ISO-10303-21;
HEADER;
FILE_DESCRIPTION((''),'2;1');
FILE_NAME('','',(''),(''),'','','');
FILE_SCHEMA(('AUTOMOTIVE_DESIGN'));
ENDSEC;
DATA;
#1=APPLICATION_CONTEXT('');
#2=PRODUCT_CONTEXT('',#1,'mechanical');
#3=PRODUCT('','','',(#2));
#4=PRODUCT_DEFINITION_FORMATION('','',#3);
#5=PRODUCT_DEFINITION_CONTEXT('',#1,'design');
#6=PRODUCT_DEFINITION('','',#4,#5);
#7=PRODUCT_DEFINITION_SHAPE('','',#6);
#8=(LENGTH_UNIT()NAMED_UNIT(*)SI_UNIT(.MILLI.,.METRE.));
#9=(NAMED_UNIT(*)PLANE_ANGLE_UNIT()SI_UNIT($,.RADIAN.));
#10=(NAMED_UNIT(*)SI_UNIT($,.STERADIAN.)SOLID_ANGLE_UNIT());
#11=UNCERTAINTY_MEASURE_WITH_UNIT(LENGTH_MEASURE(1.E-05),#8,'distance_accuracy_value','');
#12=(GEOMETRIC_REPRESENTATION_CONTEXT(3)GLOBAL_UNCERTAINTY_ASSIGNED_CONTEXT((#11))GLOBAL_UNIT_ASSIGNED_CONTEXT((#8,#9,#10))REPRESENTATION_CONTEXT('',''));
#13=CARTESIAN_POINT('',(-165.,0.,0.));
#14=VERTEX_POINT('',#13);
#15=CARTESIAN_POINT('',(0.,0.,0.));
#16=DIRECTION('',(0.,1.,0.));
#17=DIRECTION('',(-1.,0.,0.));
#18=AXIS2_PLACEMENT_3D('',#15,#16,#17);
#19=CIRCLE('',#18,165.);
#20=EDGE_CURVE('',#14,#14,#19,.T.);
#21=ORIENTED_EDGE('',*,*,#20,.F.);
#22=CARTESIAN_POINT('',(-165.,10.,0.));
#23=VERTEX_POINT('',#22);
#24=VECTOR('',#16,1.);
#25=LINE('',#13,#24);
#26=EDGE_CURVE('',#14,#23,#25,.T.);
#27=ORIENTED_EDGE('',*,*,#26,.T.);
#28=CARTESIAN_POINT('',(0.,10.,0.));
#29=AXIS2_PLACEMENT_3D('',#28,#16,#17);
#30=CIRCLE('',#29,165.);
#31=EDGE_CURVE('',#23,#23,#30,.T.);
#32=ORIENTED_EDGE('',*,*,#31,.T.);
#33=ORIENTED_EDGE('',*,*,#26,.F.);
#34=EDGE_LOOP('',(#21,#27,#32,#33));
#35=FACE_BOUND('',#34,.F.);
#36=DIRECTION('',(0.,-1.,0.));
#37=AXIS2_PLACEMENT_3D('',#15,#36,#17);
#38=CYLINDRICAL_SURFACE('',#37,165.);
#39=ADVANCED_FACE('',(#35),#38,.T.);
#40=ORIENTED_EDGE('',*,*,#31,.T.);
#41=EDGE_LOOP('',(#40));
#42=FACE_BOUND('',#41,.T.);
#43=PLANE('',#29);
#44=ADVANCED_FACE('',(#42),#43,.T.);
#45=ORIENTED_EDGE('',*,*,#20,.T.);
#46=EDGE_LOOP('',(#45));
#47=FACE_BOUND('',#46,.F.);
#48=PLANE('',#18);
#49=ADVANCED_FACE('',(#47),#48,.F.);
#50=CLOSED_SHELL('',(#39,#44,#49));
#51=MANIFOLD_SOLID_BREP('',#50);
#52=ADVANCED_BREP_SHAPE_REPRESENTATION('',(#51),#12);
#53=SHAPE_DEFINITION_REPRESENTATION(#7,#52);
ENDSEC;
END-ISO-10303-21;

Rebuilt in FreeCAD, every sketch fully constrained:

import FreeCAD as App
import Part
import Sketcher

doc = App.newDocument("Part")
body = doc.addObject("PartDesign::Body", "Body")

# Sketch on XZ plane
sketch1 = body.newObject("Sketcher::SketchObject", "Sketch")
sketch1.AttachmentSupport = (doc.getObject("XZ_Plane"), [""])
sketch1.MapMode = "FlatFace"
sketch1.addGeometry(Part.Circle(App.Vector(0, 0, 0), App.Vector(0, 0, 1), 165), False)
sketch1.addConstraint([
    Sketcher.Constraint("Coincident", 0, 3, -1, 1),
    Sketcher.Constraint("Diameter", 0, 330.0),
])
pad1 = body.newObject("PartDesign::Pad", "Pad")
pad1.Profile = sketch1
pad1.Length = 10
pad1.Reversed = True

doc.recompute()
